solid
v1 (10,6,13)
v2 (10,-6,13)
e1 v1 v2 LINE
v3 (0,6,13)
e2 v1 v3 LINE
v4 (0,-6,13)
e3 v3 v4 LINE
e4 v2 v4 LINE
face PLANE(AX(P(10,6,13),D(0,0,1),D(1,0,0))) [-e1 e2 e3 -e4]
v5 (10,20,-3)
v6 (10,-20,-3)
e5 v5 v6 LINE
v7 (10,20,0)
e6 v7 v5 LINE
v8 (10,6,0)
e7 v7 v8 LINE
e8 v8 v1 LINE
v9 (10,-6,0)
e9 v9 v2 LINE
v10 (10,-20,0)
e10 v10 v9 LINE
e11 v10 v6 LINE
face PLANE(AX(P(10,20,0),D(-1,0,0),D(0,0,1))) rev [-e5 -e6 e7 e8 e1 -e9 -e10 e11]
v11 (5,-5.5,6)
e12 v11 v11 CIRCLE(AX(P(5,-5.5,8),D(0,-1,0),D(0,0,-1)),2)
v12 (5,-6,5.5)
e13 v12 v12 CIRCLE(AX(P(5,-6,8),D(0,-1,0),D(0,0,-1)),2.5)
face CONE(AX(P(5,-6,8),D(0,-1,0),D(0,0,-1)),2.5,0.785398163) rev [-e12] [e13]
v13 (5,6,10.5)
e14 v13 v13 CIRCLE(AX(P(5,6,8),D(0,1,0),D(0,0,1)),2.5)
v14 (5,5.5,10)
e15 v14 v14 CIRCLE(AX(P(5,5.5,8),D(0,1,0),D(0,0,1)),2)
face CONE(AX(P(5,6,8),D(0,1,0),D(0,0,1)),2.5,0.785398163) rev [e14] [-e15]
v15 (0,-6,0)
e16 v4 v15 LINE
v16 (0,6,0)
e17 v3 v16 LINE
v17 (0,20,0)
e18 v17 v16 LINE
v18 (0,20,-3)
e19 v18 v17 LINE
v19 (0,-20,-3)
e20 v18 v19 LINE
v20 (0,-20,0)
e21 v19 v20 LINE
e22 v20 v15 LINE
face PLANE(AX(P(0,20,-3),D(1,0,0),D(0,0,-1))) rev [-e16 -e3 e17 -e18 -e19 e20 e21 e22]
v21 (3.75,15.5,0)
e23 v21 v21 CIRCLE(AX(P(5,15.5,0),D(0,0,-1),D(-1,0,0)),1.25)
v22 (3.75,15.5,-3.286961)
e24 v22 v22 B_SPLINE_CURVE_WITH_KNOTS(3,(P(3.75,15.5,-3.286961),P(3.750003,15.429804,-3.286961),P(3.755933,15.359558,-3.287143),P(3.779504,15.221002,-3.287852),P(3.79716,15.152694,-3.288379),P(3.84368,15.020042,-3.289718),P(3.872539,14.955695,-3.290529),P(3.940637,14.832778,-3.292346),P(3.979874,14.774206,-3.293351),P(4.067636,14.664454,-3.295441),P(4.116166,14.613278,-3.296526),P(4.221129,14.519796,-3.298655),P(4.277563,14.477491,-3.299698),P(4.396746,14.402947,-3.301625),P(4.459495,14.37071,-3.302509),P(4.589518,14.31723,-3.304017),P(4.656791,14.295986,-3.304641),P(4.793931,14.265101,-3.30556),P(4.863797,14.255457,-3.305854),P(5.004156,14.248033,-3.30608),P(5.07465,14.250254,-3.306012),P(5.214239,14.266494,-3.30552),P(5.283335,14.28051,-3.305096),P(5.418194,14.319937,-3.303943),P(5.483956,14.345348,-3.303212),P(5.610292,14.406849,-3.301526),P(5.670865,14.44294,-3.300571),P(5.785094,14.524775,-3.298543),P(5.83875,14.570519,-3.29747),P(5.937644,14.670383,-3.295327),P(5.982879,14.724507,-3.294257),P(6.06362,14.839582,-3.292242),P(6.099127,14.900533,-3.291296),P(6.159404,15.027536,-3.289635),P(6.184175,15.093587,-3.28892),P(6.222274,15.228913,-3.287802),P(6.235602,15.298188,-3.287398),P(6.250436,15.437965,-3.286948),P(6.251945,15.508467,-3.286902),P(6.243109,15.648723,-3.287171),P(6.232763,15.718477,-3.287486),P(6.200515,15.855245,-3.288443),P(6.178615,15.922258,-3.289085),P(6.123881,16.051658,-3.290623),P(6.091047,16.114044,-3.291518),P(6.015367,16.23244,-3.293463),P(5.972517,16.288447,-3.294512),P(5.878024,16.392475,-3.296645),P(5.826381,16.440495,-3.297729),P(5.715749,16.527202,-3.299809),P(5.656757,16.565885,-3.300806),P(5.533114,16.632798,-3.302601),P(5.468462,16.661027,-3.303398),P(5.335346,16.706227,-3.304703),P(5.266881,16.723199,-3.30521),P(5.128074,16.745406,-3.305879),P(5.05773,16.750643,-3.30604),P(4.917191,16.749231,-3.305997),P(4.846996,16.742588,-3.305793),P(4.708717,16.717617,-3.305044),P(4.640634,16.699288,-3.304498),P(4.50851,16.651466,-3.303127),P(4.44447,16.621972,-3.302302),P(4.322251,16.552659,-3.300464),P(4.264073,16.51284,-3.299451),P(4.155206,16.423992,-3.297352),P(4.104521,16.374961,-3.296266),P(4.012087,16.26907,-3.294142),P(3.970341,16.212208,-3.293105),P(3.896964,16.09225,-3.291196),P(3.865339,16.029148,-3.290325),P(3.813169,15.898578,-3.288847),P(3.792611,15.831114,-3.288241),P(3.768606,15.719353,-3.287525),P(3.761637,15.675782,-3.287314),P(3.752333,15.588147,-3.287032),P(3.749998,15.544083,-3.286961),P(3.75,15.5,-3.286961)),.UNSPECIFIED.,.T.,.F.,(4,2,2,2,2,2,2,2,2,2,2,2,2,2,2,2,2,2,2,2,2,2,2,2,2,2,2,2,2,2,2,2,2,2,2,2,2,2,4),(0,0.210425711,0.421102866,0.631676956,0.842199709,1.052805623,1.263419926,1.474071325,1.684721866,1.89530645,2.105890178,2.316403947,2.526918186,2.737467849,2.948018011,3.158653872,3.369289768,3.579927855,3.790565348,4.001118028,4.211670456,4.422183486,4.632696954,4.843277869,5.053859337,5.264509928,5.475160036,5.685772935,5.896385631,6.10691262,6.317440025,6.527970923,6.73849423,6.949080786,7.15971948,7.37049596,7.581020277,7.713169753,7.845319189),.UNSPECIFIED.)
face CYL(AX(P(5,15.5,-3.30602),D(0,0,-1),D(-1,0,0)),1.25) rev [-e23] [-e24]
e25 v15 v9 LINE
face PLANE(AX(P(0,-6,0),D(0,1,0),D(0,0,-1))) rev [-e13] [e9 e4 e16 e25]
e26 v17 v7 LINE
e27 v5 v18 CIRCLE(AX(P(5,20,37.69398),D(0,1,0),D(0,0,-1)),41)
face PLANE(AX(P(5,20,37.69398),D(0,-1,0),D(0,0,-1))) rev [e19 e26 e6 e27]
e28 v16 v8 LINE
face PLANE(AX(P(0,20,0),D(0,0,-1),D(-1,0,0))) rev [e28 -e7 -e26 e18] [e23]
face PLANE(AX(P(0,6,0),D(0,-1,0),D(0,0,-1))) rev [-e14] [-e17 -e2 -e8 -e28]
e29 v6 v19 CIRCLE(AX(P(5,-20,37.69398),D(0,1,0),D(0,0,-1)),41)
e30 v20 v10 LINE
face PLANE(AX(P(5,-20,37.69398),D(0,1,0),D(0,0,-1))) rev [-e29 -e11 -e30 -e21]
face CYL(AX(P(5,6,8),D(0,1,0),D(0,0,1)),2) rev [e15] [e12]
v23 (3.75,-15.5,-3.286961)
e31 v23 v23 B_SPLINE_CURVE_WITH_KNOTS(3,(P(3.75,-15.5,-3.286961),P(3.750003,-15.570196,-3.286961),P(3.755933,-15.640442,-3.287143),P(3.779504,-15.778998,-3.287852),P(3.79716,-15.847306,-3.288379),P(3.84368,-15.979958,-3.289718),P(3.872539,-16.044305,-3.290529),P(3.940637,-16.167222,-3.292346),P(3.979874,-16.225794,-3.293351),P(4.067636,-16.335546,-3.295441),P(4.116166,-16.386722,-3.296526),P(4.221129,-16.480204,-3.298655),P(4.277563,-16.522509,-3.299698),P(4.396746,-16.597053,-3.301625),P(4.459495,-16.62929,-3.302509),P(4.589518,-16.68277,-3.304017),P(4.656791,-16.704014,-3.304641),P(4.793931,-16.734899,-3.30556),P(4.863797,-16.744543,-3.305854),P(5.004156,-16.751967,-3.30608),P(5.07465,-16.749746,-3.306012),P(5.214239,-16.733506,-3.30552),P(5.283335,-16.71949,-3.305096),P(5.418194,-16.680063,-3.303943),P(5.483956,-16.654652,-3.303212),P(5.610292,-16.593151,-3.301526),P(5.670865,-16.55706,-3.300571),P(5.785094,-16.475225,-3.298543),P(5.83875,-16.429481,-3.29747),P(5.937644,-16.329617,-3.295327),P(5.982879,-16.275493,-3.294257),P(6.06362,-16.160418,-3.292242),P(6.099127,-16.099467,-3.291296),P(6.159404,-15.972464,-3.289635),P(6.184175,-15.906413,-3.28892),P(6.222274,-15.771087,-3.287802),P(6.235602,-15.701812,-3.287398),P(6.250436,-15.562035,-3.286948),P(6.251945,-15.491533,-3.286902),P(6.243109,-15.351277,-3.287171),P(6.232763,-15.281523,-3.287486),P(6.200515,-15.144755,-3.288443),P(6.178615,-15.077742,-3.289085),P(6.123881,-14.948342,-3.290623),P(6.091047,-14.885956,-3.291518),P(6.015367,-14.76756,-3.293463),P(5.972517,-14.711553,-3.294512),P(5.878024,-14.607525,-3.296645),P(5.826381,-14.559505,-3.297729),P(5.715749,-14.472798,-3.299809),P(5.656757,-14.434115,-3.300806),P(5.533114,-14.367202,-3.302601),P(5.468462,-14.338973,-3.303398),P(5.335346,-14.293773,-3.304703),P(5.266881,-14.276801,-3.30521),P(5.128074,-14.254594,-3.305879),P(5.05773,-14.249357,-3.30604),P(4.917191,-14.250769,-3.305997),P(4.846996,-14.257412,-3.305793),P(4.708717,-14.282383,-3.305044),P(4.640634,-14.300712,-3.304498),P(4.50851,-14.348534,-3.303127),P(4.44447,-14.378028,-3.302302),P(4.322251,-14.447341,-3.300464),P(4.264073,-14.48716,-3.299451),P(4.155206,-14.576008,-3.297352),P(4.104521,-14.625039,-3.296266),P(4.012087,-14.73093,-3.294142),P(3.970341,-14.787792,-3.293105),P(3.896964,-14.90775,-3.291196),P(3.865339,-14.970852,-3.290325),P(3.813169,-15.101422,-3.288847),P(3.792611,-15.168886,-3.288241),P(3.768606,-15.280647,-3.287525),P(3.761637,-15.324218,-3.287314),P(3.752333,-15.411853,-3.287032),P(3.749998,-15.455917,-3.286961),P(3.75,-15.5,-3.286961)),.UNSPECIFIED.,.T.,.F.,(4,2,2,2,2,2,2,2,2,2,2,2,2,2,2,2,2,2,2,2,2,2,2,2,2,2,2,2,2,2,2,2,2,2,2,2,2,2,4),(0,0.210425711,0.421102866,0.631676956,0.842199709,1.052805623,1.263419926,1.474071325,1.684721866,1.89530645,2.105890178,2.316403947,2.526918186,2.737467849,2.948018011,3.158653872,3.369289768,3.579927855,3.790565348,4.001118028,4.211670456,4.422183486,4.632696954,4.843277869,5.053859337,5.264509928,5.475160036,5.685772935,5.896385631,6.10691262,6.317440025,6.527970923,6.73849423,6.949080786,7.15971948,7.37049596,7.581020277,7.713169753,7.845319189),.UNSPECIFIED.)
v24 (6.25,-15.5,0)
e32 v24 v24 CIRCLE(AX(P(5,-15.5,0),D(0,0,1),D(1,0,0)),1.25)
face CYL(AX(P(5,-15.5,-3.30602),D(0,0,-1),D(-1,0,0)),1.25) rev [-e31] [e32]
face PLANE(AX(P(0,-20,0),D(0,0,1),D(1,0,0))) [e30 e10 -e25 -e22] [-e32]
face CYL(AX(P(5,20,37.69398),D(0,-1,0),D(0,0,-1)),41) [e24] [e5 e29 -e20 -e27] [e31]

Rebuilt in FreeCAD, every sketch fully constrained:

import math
import FreeCAD as App
import Part
import Sketcher

V = App.Vector

doc = App.newDocument("Part")
body = doc.addObject("PartDesign::Body", "Body")

# Sketch on XZ plane
sketch1 = body.newObject("Sketcher::SketchObject", "Sketch")
sketch1.AttachmentSupport = (doc.getObject("XZ_Plane"), [""])
sketch1.MapMode = "FlatFace"
sketch1.addGeometry([
    Part.LineSegment(V(0, 0, 0), V(10, 0, 0)),
    Part.LineSegment(V(10, 0, 0), V(10, -3, 0)),
    Part.ArcOfCircle(Part.Circle(V(5, 37.7, 0), V(0, 0, 1), 41), math.radians(-97), math.radians(-83)),
    Part.LineSegment(V(0, -3, 0), V(0, 0, 0)),
], False)
sketch1.addConstraint([
    Sketcher.Constraint("Coincident", 0, 2, 1, 1),
    Sketcher.Constraint("Coincident", 1, 2, 2, 2),
    Sketcher.Constraint("Coincident", 2, 1, 3, 1),
    Sketcher.Constraint("Coincident", 3, 2, 0, 1),
    Sketcher.Constraint("Horizontal", 0),
    Sketcher.Constraint("Vertical", 1),
    Sketcher.Constraint("Vertical", 3),
    Sketcher.Constraint("Coincident", 3, 2, -1, 1),
    Sketcher.Constraint("Horizontal", 1, 2, 2, 1),
    Sketcher.Constraint("Radius", 2, 41.0),
    Sketcher.Constraint("DistanceX", 0, 1, 0, 2, 10.0),
    Sketcher.Constraint("DistanceY", 1, 2, 1, 1, 3.0),
])
pad1 = body.newObject("PartDesign::Pad", "Pad")
pad1.Profile = sketch1
pad1.Length = 20
pad1.Reversed = True

# Sketch on XZ plane
sketch2 = body.newObject("Sketcher::SketchObject", "Sketch001")
sketch2.AttachmentSupport = (doc.getObject("XZ_Plane"), [""])
sketch2.MapMode = "FlatFace"
sketch2.addGeometry([
    Part.LineSegment(V(0, 13, 0), V(0, 0, 0)),
    Part.LineSegment(V(0, 0, 0), V(10, 0, 0)),
    Part.LineSegment(V(10, 0, 0), V(10, 13, 0)),
    Part.LineSegment(V(10, 13, 0), V(0, 13, 0)),
], False)
sketch2.addConstraint([
    Sketcher.Constraint("Coincident", 0, 2, 1, 1),
    Sketcher.Constraint("Coincident", 1, 2, 2, 1),
    Sketcher.Constraint("Coincident", 2, 2, 3, 1),
    Sketcher.Constraint("Coincident", 3, 2, 0, 1),
    Sketcher.Constraint("Vertical", 0),
    Sketcher.Constraint("Horizontal", 1),
    Sketcher.Constraint("Vertical", 2),
    Sketcher.Constraint("Horizontal", 3),
    Sketcher.Constraint("Coincident", 0, 2, -1, 1),
    Sketcher.Constraint("DistanceX", 1, 1, 1, 2, 10.0),
    Sketcher.Constraint("DistanceY", 0, 2, 0, 1, 13.0),
])
pad2 = body.newObject("PartDesign::Pad", "Pad001")
pad2.Profile = sketch2
pad2.Length = 6
pad2.Reversed = True

# Sketch on XZ plane
sketch3 = body.newObject("Sketcher::SketchObject", "Sketch002")
sketch3.AttachmentSupport = (doc.getObject("XZ_Plane"), [""])
sketch3.MapMode = "FlatFace"
sketch3.AttachmentOffset = App.Placement(V(0, 0, -6), App.Rotation())
sketch3.addGeometry(Part.Circle(V(5, 8, 0), V(0, 0, 1), 2), False)
sketch3.addConstraint([
    Sketcher.Constraint("Diameter", 0, 4.0),
    Sketcher.Constraint("DistanceX", -1, 1, 0, 3, 5.0),
    Sketcher.Constraint("DistanceY", -1, 1, 0, 3, 8.0),
])
doc.recompute()
hole = body.newObject("PartDesign::Hole", "Hole")
hole.Profile = sketch3
hole.ThreadType = "None"
hole.Diameter = 4
hole.DepthType = "ThroughAll"
hole.HoleCutType = "Countersink"
hole.HoleCutDiameter = 5
hole.HoleCutCountersinkAngle = 90
hole.Reversed = True

# Sketch on XY plane
sketch4 = body.newObject("Sketcher::SketchObject", "Sketch003")
sketch4.AttachmentSupport = (doc.getObject("XY_Plane"), [""])
sketch4.MapMode = "FlatFace"
sketch4.AttachmentOffset = App.Placement(V(0, 0, -3.30602), App.Rotation())
sketch4.addGeometry(Part.Circle(V(5, 15.5, 0), V(0, 0, 1), 1.2), False)
sketch4.addConstraint([
    Sketcher.Constraint("Diameter", 0, 2.5),
    Sketcher.Constraint("DistanceX", -1, 1, 0, 3, 5.0),
    Sketcher.Constraint("DistanceY", -1, 1, 0, 3, 15.5),
])
doc.recompute()
hole2 = body.newObject("PartDesign::Hole", "Hole001")
hole2.Profile = sketch4
hole2.ThreadType = "None"
hole2.Diameter = 2.5
hole2.DepthType = "ThroughAll"
hole2.Reversed = True
doc.recompute()

mirrored = body.newObject("PartDesign::Mirrored", "Mirrored")
mirrored.Originals = [pad1, pad2, hole, hole2]
mirrored.MirrorPlane = (doc.getObject("XZ_Plane"), [""])
body.Tip = mirrored

doc.recompute()
